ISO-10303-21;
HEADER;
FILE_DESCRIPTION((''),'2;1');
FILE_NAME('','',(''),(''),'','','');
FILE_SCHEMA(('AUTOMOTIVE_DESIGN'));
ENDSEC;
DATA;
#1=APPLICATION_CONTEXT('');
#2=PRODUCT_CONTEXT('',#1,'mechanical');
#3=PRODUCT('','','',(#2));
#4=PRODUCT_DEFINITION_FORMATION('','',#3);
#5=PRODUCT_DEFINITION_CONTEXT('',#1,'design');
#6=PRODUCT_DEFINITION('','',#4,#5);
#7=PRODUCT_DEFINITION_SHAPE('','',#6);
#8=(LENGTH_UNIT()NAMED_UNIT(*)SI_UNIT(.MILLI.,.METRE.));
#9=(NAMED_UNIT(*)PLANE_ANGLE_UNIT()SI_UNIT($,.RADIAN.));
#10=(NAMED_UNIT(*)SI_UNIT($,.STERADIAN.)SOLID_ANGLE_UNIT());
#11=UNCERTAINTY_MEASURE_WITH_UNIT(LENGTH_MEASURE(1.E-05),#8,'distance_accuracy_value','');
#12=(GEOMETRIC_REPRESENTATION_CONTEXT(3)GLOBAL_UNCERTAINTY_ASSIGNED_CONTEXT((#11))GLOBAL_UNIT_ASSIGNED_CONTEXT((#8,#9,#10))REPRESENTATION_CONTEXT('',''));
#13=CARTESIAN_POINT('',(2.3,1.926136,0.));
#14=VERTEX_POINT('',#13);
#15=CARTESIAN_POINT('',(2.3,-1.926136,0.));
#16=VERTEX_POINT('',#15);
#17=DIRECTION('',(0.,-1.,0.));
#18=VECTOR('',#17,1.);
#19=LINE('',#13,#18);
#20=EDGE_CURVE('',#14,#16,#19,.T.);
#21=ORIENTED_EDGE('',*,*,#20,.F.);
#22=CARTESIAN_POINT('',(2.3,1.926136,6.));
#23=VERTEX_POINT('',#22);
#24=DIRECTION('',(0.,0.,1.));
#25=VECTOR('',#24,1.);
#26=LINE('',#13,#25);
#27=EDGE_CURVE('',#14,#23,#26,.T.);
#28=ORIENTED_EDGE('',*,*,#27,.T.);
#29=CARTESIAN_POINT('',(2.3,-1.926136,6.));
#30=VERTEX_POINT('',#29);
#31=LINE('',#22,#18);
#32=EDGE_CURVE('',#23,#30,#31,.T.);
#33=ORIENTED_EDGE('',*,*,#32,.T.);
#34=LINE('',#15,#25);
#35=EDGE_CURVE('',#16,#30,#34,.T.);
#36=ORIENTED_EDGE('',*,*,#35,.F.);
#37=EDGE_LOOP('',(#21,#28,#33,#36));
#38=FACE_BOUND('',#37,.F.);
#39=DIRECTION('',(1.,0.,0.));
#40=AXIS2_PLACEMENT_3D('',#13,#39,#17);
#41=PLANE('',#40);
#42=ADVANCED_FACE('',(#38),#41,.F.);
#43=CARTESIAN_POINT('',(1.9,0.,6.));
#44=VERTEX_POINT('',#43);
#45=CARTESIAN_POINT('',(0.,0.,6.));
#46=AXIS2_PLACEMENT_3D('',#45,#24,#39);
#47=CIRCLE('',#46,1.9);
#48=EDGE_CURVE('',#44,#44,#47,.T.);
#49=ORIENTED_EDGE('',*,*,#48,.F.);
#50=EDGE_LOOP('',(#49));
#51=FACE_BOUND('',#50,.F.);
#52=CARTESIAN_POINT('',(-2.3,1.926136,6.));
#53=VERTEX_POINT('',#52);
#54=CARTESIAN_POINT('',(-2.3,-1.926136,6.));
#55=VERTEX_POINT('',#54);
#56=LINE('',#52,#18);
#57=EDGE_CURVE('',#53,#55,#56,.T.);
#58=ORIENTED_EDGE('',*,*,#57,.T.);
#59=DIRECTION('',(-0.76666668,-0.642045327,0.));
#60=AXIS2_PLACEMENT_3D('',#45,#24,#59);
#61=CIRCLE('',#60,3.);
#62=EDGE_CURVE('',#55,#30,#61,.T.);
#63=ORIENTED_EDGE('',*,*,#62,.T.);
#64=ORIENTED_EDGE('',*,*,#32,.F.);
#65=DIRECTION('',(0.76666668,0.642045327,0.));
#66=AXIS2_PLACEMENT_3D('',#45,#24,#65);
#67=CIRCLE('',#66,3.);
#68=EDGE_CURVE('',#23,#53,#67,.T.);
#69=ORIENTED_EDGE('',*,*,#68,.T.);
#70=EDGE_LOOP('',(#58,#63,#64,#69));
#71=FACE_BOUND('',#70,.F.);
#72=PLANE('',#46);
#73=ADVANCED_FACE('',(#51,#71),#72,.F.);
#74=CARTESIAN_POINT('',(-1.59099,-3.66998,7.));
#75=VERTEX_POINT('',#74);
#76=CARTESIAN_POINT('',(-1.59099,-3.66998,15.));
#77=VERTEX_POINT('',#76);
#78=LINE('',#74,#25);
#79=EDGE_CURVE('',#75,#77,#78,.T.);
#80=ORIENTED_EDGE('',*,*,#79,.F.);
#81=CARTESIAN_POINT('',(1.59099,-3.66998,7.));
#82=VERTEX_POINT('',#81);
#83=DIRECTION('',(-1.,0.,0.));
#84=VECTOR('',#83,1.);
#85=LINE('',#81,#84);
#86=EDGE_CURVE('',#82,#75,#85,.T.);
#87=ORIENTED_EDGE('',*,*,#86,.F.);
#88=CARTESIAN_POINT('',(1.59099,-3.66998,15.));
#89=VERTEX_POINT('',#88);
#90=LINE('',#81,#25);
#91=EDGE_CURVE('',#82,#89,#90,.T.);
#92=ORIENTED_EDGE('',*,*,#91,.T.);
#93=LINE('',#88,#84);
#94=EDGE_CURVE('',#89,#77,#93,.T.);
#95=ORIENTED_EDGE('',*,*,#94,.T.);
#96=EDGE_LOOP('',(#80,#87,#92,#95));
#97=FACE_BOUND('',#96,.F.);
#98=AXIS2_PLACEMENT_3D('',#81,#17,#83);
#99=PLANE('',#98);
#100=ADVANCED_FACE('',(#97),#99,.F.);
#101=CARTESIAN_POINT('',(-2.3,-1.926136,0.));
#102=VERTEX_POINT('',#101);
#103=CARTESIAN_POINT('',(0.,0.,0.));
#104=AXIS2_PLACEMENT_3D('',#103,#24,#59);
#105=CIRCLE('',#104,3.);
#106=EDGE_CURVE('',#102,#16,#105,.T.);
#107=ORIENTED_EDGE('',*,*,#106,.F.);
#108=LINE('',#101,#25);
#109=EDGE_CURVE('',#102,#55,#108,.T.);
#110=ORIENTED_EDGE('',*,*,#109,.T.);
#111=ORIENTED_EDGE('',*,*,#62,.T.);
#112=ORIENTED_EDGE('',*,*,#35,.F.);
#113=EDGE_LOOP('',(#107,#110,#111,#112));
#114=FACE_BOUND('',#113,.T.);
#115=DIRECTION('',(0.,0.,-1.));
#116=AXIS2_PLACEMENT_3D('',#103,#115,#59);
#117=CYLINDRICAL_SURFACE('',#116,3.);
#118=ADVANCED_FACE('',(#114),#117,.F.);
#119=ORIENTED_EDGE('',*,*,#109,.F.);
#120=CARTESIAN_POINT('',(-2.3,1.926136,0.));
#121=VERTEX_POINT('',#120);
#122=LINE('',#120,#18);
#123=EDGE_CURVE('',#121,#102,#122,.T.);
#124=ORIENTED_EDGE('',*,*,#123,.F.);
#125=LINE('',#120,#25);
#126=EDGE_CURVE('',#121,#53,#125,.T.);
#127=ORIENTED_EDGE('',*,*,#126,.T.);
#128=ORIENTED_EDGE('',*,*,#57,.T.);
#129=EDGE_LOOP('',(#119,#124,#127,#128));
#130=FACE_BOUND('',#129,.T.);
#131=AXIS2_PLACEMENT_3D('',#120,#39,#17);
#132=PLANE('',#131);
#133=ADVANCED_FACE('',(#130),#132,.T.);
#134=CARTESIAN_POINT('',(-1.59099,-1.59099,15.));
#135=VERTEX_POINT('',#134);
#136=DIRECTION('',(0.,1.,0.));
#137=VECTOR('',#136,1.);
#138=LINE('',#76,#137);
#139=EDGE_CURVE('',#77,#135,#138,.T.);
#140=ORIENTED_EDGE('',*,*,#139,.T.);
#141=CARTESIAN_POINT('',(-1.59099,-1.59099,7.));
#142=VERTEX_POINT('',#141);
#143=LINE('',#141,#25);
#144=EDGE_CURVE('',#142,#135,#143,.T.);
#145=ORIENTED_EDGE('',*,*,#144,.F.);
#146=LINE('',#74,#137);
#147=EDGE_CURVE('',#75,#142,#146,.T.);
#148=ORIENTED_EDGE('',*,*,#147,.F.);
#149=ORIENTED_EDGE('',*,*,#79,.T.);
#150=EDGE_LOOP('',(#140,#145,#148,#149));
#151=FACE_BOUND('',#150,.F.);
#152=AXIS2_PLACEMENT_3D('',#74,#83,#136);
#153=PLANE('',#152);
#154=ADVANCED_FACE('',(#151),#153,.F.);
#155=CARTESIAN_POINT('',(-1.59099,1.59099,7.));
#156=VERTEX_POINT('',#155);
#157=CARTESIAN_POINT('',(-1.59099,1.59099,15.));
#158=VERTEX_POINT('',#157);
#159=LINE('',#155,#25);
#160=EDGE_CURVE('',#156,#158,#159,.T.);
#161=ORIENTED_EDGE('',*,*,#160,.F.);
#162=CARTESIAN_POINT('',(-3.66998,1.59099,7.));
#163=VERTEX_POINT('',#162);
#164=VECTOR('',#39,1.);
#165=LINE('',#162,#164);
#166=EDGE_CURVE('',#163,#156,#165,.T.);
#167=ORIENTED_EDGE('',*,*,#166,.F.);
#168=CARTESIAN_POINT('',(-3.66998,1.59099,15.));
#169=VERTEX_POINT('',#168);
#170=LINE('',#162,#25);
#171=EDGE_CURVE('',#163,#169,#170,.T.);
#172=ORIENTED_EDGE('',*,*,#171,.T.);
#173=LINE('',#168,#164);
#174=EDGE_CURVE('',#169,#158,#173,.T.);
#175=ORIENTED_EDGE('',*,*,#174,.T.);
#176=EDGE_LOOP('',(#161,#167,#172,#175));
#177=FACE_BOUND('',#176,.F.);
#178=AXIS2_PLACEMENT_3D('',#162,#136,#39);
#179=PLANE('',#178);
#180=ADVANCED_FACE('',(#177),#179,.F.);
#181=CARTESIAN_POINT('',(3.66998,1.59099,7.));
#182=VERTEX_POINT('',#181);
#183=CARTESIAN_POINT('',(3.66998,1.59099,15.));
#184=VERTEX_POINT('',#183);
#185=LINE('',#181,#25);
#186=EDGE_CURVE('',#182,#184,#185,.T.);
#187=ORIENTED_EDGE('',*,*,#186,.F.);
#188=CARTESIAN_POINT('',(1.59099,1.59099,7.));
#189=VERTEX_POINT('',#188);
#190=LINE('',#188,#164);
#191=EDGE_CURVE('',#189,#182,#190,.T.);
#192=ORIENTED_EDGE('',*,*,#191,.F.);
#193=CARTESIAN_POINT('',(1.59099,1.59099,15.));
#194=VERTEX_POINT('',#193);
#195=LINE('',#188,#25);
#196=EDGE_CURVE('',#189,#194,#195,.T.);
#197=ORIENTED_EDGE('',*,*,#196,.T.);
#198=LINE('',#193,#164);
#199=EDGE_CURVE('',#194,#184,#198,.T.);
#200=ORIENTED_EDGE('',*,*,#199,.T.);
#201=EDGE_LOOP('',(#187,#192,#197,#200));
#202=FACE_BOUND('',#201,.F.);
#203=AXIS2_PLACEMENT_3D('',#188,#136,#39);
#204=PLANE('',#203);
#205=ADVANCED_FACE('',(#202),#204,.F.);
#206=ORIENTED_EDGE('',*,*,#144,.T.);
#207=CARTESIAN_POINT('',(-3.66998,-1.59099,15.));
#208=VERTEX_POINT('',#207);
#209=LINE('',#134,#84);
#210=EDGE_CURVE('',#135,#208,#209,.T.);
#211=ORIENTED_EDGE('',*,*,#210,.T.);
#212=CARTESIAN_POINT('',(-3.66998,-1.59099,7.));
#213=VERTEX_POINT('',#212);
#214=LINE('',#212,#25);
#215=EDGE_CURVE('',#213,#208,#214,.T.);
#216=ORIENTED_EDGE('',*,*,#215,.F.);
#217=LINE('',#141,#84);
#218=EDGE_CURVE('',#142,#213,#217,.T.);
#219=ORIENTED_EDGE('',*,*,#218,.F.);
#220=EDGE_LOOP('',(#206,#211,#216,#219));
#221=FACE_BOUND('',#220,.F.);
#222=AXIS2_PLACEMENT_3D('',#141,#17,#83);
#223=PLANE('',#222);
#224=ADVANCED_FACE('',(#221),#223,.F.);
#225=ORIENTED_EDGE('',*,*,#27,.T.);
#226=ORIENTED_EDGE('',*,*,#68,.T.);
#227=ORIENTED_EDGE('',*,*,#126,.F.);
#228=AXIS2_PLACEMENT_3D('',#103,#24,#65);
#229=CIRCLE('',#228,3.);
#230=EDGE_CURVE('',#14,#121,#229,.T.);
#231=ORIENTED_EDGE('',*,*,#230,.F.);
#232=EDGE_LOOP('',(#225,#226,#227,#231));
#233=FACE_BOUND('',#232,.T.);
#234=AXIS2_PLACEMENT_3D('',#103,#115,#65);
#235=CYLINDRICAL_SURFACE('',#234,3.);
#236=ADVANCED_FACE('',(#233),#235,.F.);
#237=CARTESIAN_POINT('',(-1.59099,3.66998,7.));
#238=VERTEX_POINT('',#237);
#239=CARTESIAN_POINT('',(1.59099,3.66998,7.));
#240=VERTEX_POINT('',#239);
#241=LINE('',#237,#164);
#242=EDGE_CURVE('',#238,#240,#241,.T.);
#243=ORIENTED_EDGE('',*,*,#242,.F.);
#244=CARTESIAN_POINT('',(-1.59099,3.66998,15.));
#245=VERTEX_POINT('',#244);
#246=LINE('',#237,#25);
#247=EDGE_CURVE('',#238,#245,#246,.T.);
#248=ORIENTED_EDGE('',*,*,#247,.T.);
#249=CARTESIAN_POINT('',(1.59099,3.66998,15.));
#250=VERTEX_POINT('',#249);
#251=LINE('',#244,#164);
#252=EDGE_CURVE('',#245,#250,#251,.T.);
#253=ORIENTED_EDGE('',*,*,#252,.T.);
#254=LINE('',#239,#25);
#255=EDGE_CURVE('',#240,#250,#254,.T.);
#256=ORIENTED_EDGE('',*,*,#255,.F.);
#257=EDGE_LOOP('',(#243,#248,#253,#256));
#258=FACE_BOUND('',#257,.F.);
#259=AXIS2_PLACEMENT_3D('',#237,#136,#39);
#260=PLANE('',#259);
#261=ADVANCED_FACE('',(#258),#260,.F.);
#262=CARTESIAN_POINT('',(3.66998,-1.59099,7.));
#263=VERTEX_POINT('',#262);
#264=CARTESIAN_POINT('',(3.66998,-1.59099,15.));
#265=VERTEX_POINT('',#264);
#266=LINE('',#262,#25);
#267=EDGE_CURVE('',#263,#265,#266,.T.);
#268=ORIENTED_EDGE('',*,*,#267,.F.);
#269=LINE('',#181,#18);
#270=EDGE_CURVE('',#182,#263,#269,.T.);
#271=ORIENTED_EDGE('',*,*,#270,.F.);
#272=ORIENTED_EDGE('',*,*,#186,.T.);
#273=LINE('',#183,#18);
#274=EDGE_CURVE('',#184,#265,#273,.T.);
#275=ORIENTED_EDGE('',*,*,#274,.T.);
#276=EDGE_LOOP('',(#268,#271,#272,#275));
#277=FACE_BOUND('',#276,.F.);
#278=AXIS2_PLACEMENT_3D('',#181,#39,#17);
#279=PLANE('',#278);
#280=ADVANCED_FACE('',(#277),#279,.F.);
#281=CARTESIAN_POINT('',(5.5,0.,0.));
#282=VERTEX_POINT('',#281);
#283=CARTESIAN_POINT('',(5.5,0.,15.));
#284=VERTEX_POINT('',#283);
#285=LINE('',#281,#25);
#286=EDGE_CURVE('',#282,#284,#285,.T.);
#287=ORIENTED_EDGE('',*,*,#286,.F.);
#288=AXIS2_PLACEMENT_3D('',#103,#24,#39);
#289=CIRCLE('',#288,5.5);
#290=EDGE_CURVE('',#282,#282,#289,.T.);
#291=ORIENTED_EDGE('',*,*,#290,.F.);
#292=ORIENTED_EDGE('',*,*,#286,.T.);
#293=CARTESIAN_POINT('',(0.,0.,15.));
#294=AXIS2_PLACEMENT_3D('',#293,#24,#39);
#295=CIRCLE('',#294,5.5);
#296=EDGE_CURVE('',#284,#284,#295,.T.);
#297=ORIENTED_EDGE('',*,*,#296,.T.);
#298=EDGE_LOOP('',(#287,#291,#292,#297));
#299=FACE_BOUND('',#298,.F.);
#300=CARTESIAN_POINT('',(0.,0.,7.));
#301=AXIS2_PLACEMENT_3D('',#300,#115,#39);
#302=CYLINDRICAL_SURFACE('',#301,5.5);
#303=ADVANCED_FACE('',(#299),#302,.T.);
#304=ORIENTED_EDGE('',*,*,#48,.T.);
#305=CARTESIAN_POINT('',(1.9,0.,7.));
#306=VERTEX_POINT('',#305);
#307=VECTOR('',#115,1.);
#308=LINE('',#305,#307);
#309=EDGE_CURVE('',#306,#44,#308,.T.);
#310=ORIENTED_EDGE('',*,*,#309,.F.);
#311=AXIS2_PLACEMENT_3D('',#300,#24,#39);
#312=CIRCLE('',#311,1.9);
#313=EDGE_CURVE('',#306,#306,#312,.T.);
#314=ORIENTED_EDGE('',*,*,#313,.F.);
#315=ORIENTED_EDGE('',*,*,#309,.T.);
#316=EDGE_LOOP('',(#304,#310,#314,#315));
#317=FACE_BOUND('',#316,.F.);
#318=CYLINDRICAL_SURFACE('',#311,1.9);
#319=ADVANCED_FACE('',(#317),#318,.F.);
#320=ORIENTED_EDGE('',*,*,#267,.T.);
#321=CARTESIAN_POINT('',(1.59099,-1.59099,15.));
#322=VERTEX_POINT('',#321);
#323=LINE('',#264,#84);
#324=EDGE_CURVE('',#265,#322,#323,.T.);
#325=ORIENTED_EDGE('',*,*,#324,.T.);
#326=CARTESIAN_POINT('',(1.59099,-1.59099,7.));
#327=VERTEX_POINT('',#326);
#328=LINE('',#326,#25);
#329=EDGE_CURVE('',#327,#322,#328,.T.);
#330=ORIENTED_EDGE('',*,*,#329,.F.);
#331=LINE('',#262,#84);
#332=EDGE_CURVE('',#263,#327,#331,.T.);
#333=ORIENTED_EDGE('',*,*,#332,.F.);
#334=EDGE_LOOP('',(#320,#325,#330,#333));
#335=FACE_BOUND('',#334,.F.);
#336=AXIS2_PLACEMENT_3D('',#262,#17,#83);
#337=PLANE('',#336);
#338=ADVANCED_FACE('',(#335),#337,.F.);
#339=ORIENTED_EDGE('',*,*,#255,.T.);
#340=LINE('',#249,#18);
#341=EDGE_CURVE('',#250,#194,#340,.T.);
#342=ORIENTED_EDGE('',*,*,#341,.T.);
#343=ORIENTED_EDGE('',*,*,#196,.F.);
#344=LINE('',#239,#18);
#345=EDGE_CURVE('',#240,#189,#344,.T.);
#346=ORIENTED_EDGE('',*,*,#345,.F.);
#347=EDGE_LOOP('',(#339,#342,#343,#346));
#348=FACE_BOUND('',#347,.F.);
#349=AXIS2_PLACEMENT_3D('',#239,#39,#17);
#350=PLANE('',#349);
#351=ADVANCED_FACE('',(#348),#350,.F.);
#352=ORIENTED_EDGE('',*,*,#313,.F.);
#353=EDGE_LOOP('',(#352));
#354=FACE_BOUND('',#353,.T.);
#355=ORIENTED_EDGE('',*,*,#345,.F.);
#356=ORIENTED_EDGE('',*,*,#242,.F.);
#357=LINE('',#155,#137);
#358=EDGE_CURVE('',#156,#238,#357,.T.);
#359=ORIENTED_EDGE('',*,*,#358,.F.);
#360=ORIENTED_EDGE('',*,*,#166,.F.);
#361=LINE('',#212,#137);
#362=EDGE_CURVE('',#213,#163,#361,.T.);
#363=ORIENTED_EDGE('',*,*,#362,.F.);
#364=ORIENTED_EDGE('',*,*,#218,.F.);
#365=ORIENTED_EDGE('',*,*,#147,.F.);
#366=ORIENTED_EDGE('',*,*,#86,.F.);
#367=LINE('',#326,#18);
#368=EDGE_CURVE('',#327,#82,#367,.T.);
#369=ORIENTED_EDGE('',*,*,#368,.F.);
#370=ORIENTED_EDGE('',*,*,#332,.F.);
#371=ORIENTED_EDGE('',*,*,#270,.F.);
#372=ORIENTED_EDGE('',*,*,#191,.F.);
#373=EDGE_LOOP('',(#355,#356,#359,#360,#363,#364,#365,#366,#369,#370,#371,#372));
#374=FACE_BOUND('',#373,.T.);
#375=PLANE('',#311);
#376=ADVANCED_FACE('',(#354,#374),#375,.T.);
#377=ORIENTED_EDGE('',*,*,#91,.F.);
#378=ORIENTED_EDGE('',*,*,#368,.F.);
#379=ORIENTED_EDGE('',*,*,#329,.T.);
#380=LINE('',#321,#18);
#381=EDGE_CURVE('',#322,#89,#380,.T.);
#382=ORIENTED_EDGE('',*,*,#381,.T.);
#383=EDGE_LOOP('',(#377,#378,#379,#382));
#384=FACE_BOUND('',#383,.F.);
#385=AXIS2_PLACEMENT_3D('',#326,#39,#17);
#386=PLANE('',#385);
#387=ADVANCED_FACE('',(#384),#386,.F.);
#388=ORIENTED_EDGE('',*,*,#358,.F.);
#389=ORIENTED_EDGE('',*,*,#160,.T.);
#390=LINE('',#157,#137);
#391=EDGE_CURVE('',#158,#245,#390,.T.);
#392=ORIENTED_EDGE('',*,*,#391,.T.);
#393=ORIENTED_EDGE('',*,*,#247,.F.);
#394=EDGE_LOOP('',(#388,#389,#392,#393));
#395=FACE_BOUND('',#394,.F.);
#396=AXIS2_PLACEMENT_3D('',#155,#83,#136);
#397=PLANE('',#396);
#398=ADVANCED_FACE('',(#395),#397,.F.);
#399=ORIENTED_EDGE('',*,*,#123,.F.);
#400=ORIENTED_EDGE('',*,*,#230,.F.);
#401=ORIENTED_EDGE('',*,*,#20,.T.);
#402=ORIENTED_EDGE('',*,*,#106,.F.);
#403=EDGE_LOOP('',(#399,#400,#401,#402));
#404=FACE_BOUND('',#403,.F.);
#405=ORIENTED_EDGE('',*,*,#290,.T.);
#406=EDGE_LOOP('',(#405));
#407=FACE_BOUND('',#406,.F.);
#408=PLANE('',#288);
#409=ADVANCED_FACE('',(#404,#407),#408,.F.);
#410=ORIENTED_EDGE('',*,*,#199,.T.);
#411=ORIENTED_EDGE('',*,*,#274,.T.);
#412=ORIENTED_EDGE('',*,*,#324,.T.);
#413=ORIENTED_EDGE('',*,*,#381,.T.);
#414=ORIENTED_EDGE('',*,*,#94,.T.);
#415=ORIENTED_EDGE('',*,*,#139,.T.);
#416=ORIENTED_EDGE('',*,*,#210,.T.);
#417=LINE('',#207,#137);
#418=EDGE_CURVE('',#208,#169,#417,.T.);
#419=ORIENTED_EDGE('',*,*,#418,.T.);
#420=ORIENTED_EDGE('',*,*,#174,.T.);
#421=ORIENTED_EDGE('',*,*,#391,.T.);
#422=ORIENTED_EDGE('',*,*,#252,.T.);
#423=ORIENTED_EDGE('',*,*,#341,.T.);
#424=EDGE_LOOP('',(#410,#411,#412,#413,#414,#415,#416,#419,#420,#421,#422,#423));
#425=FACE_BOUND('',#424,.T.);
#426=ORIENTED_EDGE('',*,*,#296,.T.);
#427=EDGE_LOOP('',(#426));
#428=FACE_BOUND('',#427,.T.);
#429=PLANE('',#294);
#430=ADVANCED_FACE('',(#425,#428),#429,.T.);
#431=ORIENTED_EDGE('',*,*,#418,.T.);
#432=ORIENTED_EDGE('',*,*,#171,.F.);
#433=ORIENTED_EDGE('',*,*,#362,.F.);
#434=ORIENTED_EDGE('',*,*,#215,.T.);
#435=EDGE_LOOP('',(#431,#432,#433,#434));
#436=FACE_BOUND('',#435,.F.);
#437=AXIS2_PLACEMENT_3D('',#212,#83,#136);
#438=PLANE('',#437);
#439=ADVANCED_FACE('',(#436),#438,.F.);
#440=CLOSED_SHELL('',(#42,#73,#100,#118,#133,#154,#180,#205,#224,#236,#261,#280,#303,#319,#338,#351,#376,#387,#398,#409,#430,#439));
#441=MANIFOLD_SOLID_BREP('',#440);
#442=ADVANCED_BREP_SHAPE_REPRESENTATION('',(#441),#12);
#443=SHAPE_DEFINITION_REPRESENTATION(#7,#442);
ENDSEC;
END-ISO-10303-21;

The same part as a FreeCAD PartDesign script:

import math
import FreeCAD as App
import Part
import Sketcher
Q = App.Units.Quantity


def add_polygon(sketch, points):
    """Adds a closed chain of lines whose ends are joined by coincident constraints."""
    first, n = sketch.GeometryCount, len(points)
    for a, b in zip(points, points[1:] + points[:1]):
        sketch.addGeometry(Part.LineSegment(App.Vector(*a, 0), App.Vector(*b, 0)), False)
    for i in range(n):
        sketch.addConstraint(Sketcher.Constraint("Coincident", first + i, 2, first + (i + 1) % n, 1))

doc = App.newDocument("Part")
body = doc.addObject("PartDesign::Body", "Body")

# Sketch on XY plane
sketch1 = body.newObject("Sketcher::SketchObject", "Sketch")
sketch1.AttachmentSupport = (doc.getObject("XY_Plane"), [""])
sketch1.MapMode = "FlatFace"
sketch1.addGeometry(Part.Circle(App.Vector(0, 0, 0), App.Vector(0, 0, 1), 5.5), False)
sketch1.addGeometry(Part.LineSegment(App.Vector(-2.3, -1.9, 0), App.Vector(-2.3, 1.9, 0)), False)
sketch1.addGeometry(Part.ArcOfCircle(Part.Circle(App.Vector(0, 0, 0), App.Vector(0, 0, 1), 3), math.radians(40), math.radians(140)), False)
sketch1.addGeometry(Part.LineSegment(App.Vector(2.3, 1.9, 0), App.Vector(2.3, -1.9, 0)), False)
sketch1.addGeometry(Part.ArcOfCircle(Part.Circle(App.Vector(0, 0, 0), App.Vector(0, 0, 1), 3), math.radians(-140), math.radians(-40)), False)
sketch1.addConstraint(Sketcher.Constraint("Coincident", 1, 2, 2, 2))
sketch1.addConstraint(Sketcher.Constraint("Coincident", 2, 1, 3, 1))
sketch1.addConstraint(Sketcher.Constraint("Coincident", 3, 2, 4, 2))
sketch1.addConstraint(Sketcher.Constraint("Coincident", 4, 1, 1, 1))
sketch1.addConstraint(Sketcher.Constraint("Vertical", 1))
sketch1.addConstraint(Sketcher.Constraint("Vertical", 3))
sketch1.addConstraint(Sketcher.Constraint("Coincident", 0, 3, -1, 1))
sketch1.addConstraint(Sketcher.Constraint("Coincident", 2, 3, -1, 1))
sketch1.addConstraint(Sketcher.Constraint("Coincident", 4, 3, -1, 1))
sketch1.addConstraint(Sketcher.Constraint("Equal", 2, 4))
sketch1.addConstraint(Sketcher.Constraint("Horizontal", 1, 2, 2, 1))
sketch1.addConstraint(Sketcher.Constraint("Diameter", 0, Q("11 mm")))
sketch1.addConstraint(Sketcher.Constraint("Radius", 2, Q("3 mm")))
sketch1.addConstraint(Sketcher.Constraint("DistanceX", 1, 2, -1, 1, Q("2.3 mm")))
pad1 = body.newObject("PartDesign::Pad", "Pad")
pad1.Profile = sketch1
pad1.Length = 6

# Sketch on XY plane
sketch2 = body.newObject("Sketcher::SketchObject", "Sketch001")
sketch2.AttachmentSupport = (doc.getObject("XY_Plane"), [""])
sketch2.MapMode = "FlatFace"
sketch2.AttachmentOffset = App.Placement(App.Vector(0, 0, 6), App.Rotation())
sketch2.addGeometry(Part.Circle(App.Vector(0, 0, 0), App.Vector(0, 0, 1), 6), False)
sketch2.addConstraint(Sketcher.Constraint("Coincident", 0, 3, -1, 1))
sketch2.addConstraint(Sketcher.Constraint("Diameter", 0, Q("11 mm")))
pad2 = body.newObject("PartDesign::Pad", "Pad001")
pad2.Profile = sketch2
pad2.Length = 1

# Sketch on XY plane
sketch3 = body.newObject("Sketcher::SketchObject", "Sketch002")
sketch3.AttachmentSupport = (doc.getObject("XY_Plane"), [""])
sketch3.MapMode = "FlatFace"
sketch3.AttachmentOffset = App.Placement(App.Vector(0, 0, 7), App.Rotation())
sketch3.addGeometry(Part.Circle(App.Vector(0, 0, 0), App.Vector(0, 0, 1), 1.9), False)
sketch3.addConstraint(Sketcher.Constraint("Coincident", 0, 3, -1, 1))
sketch3.addConstraint(Sketcher.Constraint("Diameter", 0, Q("3.8 mm")))
pocket1 = body.newObject("PartDesign::Pocket", "Pocket")
pocket1.Profile = sketch3
pocket1.Length = 5

# Sketch on XY plane
sketch4 = body.newObject("Sketcher::SketchObject", "Sketch003")
sketch4.AttachmentSupport = (doc.getObject("XY_Plane"), [""])
sketch4.MapMode = "FlatFace"
sketch4.AttachmentOffset = App.Placement(App.Vector(0, 0, 7), App.Rotation())
sketch4.addGeometry(Part.Circle(App.Vector(0, 0, 0), App.Vector(0, 0, 1), 5.5), False)  # 0
add_polygon(sketch4, [(-1.6, -1.6), (-3.7, -1.6), (-3.7, 1.6), (-1.6, 1.6), (-1.6, 3.7), (1.6, 3.7), (1.6, 1.6), (3.7, 1.6), (3.7, -1.6), (1.6, -1.6), (1.6, -3.7), (-1.6, -3.7)])  # lines 1-12
sketch4.addConstraint(Sketcher.Constraint("Horizontal", 1))
sketch4.addConstraint(Sketcher.Constraint("Vertical", 2))
sketch4.addConstraint(Sketcher.Constraint("Horizontal", 3))
sketch4.addConstraint(Sketcher.Constraint("Vertical", 4))
sketch4.addConstraint(Sketcher.Constraint("Horizontal", 5))
sketch4.addConstraint(Sketcher.Constraint("Vertical", 6))
sketch4.addConstraint(Sketcher.Constraint("Horizontal", 7))
sketch4.addConstraint(Sketcher.Constraint("Vertical", 8))
sketch4.addConstraint(Sketcher.Constraint("Horizontal", 9))
sketch4.addConstraint(Sketcher.Constraint("Vertical", 10))
sketch4.addConstraint(Sketcher.Constraint("Horizontal", 11))
sketch4.addConstraint(Sketcher.Constraint("Vertical", 12))
sketch4.addConstraint(Sketcher.Constraint("Coincident", 0, 3, -1, 1))
sketch4.addConstraint(Sketcher.Constraint("Symmetric", 1, 2, 7, 2, -1, 1))
sketch4.addConstraint(Sketcher.Constraint("Symmetric", 3, 2, 9, 2, -1, 1))
sketch4.addConstraint(Sketcher.Constraint("Symmetric", 5, 2, 11, 2, -1, 1))
sketch4.addConstraint(Sketcher.Constraint("Symmetric", 3, 2, 6, 2, -2))
sketch4.addConstraint(Sketcher.Constraint("Equal", 11, 2))
sketch4.addConstraint(Sketcher.Constraint("Equal", 9, 4))
sketch4.addConstraint(Sketcher.Constraint("Diameter", 0, Q("11 mm")))
sketch4.addConstraint(Sketcher.Constraint("DistanceX", 1, 2, 1, 1, Q("2.07899 mm")))
sketch4.addConstraint(Sketcher.Constraint("DistanceX", 5, 1, 5, 2, Q("3.18198 mm")))
pad3 = body.newObject("PartDesign::Pad", "Pad002")
pad3.Profile = sketch4
pad3.Length = 8

doc.recompute()
